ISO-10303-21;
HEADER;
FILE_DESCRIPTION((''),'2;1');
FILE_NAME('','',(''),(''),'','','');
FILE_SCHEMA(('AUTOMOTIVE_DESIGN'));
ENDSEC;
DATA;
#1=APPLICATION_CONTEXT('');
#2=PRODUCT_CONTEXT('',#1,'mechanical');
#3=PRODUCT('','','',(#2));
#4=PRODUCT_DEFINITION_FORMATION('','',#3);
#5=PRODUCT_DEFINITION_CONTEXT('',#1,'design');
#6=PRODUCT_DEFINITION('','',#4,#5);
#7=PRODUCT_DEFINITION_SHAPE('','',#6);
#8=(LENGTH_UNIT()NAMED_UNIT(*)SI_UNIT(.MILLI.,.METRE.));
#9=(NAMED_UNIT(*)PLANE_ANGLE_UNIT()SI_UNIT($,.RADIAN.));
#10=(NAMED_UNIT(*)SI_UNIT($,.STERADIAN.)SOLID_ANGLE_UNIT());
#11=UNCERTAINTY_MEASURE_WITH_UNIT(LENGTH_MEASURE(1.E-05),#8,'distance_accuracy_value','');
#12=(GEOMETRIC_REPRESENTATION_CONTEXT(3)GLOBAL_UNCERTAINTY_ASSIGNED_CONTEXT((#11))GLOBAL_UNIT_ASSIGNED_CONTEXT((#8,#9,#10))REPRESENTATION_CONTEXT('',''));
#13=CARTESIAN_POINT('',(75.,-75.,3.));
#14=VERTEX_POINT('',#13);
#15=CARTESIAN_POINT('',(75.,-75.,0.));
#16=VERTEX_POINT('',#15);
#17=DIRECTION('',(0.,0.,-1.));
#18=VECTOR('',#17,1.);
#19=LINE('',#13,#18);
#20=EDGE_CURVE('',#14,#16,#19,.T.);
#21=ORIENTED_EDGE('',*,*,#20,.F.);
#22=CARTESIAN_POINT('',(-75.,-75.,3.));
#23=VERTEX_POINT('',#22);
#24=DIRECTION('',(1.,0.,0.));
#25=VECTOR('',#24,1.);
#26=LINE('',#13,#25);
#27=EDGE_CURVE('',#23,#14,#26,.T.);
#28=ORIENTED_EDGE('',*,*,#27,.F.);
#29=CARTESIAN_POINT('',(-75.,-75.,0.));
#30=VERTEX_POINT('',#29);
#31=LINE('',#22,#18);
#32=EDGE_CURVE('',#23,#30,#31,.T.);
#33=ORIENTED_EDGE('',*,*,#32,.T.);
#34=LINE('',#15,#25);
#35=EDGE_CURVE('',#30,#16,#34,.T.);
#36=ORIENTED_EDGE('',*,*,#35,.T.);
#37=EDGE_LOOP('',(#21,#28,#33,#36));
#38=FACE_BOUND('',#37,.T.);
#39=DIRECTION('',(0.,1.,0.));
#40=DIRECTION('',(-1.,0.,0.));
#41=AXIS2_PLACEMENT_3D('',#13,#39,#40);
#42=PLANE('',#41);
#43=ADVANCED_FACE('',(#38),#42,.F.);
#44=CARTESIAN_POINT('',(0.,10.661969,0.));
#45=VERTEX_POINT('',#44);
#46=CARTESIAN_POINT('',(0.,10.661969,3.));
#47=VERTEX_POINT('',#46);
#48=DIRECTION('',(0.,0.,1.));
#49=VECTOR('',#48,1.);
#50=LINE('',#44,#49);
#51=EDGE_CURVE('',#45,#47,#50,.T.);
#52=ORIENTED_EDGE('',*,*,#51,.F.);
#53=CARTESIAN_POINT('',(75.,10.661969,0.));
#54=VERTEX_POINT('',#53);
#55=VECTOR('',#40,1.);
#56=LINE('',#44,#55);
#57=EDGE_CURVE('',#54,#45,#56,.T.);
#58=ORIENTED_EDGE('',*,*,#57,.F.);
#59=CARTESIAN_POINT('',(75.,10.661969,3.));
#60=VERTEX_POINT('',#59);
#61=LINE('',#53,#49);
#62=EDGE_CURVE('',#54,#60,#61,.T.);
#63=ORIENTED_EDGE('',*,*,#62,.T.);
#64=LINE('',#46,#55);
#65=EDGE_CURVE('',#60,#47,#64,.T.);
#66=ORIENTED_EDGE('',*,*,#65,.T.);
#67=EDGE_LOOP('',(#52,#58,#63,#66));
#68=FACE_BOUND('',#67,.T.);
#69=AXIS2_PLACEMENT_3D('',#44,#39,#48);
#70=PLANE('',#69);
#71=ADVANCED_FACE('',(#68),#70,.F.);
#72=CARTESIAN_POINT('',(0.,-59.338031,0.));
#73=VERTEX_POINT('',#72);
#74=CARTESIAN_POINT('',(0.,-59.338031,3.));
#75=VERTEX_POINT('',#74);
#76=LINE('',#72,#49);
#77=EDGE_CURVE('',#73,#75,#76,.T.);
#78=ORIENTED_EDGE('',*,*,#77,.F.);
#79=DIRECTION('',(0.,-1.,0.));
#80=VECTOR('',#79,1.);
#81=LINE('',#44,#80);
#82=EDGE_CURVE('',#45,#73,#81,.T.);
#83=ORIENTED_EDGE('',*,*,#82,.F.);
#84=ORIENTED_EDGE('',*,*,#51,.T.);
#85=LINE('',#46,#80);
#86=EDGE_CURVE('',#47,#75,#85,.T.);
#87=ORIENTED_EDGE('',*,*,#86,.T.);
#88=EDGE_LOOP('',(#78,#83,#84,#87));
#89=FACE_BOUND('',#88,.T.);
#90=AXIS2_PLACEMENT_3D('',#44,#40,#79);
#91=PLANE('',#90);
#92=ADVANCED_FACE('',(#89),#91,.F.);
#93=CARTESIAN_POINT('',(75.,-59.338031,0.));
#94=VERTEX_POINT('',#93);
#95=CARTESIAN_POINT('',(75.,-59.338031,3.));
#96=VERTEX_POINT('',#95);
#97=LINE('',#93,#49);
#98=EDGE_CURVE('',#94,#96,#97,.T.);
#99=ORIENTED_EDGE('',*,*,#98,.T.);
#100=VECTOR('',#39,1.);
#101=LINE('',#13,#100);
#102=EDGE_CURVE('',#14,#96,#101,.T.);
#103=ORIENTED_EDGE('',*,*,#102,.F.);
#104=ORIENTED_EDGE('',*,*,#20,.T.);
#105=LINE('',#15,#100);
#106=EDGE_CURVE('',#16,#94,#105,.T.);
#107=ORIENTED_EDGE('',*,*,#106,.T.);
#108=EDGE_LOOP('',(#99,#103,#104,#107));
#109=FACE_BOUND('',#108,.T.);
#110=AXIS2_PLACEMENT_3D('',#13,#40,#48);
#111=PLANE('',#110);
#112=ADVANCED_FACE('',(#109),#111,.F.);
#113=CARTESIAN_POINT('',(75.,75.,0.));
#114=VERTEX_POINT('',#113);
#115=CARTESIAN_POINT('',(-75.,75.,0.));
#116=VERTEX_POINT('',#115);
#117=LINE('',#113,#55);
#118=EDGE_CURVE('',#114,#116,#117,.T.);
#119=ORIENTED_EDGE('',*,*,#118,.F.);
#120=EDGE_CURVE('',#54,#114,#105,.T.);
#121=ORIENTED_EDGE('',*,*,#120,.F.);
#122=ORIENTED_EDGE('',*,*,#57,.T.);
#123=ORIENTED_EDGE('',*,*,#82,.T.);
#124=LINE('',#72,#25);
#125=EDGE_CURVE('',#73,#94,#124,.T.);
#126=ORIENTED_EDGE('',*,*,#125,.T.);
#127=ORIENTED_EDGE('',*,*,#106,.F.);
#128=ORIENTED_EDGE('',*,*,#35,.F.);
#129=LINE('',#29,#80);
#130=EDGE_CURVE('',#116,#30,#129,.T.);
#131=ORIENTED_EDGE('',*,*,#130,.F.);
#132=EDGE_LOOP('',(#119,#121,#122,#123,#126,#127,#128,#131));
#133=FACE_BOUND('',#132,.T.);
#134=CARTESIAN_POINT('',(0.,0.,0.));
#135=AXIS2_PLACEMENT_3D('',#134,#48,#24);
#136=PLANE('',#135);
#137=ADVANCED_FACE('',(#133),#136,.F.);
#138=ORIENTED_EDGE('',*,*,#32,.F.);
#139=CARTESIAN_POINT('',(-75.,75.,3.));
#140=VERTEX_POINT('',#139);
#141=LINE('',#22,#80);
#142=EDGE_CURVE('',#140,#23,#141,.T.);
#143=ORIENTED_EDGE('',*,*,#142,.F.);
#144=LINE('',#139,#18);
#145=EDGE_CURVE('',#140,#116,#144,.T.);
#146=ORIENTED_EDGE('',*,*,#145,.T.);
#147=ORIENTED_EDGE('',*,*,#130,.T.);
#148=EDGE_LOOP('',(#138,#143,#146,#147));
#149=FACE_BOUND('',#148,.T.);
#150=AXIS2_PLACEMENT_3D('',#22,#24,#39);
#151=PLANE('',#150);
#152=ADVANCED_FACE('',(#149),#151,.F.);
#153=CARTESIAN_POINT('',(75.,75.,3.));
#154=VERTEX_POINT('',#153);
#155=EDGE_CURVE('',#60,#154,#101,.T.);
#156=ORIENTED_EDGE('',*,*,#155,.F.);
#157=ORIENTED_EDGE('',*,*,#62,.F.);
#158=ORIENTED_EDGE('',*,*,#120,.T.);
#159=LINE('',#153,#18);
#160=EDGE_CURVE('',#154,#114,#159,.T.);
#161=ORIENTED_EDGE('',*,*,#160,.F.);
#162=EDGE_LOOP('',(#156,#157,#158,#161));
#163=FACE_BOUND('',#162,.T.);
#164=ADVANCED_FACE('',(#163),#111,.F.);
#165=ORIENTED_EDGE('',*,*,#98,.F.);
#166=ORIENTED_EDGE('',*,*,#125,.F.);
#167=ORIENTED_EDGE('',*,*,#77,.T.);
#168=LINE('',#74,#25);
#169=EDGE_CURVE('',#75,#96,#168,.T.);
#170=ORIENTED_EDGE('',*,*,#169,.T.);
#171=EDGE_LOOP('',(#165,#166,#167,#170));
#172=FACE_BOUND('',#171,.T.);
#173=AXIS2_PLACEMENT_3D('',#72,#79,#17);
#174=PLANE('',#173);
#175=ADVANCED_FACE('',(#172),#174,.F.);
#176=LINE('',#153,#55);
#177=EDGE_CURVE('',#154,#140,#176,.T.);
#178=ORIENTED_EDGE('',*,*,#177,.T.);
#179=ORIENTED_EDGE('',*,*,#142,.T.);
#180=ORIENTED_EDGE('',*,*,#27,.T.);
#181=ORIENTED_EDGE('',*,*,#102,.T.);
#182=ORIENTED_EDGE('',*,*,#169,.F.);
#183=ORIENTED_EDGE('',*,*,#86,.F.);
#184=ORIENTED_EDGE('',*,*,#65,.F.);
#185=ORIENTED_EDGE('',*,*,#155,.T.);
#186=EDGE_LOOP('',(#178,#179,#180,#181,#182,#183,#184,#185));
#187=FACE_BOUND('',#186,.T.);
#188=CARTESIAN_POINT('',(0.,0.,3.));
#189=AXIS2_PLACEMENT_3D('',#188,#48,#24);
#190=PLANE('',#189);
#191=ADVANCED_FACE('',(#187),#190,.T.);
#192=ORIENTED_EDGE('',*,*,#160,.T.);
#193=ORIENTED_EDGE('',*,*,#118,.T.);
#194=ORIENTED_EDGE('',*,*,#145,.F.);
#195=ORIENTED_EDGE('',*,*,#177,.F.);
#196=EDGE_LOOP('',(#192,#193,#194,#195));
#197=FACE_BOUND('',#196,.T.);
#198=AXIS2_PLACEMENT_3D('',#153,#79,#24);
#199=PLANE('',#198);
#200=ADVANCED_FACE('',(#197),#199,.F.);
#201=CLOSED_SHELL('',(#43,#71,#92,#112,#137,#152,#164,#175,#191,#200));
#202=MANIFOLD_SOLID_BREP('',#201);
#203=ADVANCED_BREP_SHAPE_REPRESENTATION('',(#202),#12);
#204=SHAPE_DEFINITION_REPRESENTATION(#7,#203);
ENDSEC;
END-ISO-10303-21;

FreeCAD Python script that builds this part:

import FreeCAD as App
import Part
import Sketcher
Q = App.Units.Quantity


def add_polygon(sketch, points):
    """Adds a closed chain of lines whose ends are joined by coincident constraints."""
    first, n = sketch.GeometryCount, len(points)
    for a, b in zip(points, points[1:] + points[:1]):
        sketch.addGeometry(Part.LineSegment(App.Vector(*a, 0), App.Vector(*b, 0)), False)
    for i in range(n):
        sketch.addConstraint(Sketcher.Constraint("Coincident", first + i, 2, first + (i + 1) % n, 1))

doc = App.newDocument("Part")
params = doc.addObject("Spreadsheet::Sheet", "Params")
for row, (alias, value) in enumerate([
    ("sketch1_width", "150 mm"),
    ("pad1_length", "3 mm"),
    ("sketch2_width", "75 mm"),
    ("sketch2_height", "70 mm"),
], start=1):
    params.set(f"A{row}", alias)
    params.set(f"B{row}", "=" + value)
    params.setAlias(f"B{row}", alias)

body = doc.addObject("PartDesign::Body", "Body")

sketch1 = body.newObject("Sketcher::SketchObject", "Sketch")
sketch1.AttachmentSupport = (doc.getObject("XY_Plane"), [""])
sketch1.MapMode = "FlatFace"
add_polygon(sketch1, [(-75, 75), (-75, -75), (75, -75), (75, 75)])
sketch1.addConstraint(Sketcher.Constraint("Vertical", 0))
sketch1.addConstraint(Sketcher.Constraint("Horizontal", 1))
sketch1.addConstraint(Sketcher.Constraint("Vertical", 2))
sketch1.addConstraint(Sketcher.Constraint("Horizontal", 3))
sketch1.addConstraint(Sketcher.Constraint("Symmetric", 0, 2, 2, 2, -1, 1))
sketch1.addConstraint(Sketcher.Constraint("Equal", 3, 0))
sketch1.addConstraint(Sketcher.Constraint("DistanceX", 1, 1, 1, 2, Q("150 mm")))
sketch1.setExpression("Constraints[10]", "Params.sketch1_width")
pad1 = body.newObject("PartDesign::Pad", "Pad")
pad1.Profile = sketch1
pad1.setExpression("Length", "Params.pad1_length")

sketch2 = body.newObject("Sketcher::SketchObject", "Sketch001")
sketch2.AttachmentSupport = (doc.getObject("XY_Plane"), [""])
sketch2.MapMode = "FlatFace"
sketch2.AttachmentOffset = App.Placement(App.Vector(0, 0, 3), App.Rotation())
add_polygon(sketch2, [(0, 11), (0, -59), (75, -59), (75, 11)])
sketch2.addConstraint(Sketcher.Constraint("Vertical", 0))
sketch2.addConstraint(Sketcher.Constraint("Horizontal", 1))
sketch2.addConstraint(Sketcher.Constraint("Vertical", 2))
sketch2.addConstraint(Sketcher.Constraint("Horizontal", 3))
sketch2.addConstraint(Sketcher.Constraint("PointOnObject", 0, 2, -2))
sketch2.addConstraint(Sketcher.Constraint("DistanceX", 1, 1, 1, 2, Q("75 mm")))
sketch2.addConstraint(Sketcher.Constraint("DistanceY", 0, 2, 0, 1, Q("70 mm")))
sketch2.addConstraint(Sketcher.Constraint("DistanceY", 0, 2, -1, 1, Q("59.338031 mm")))
sketch2.setExpression("Constraints[9]", "Params.sketch2_width")
sketch2.setExpression("Constraints[10]", "Params.sketch2_height")
pocket1 = body.newObject("PartDesign::Pocket", "Pocket")
pocket1.Profile = sketch2
pocket1.Type = "ThroughAll"

doc.recompute()
